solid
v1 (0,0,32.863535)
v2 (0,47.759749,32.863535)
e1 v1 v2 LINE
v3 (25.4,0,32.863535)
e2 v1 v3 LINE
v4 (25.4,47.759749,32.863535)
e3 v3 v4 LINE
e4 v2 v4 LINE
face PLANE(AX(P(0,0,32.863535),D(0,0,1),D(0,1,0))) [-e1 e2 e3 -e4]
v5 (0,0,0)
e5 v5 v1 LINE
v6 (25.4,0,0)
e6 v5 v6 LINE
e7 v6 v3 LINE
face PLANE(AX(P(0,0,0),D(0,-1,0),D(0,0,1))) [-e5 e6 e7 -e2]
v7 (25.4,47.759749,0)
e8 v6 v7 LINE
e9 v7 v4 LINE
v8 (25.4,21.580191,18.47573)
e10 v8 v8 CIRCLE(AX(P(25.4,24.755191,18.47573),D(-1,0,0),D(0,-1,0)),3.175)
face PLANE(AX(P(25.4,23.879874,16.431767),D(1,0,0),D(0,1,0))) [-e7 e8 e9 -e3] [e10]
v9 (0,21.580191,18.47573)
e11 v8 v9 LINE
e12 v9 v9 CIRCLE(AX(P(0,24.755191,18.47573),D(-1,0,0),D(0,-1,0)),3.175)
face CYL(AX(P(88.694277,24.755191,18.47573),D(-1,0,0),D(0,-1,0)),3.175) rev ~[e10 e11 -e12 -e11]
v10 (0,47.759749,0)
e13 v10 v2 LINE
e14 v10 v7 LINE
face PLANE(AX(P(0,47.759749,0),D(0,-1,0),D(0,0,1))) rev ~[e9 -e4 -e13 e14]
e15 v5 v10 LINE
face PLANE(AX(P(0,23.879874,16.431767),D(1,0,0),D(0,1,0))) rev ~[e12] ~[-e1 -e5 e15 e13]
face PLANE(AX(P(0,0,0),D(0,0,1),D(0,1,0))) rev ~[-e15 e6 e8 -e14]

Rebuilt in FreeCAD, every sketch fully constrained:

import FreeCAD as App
import Part
import Sketcher

V = App.Vector
Q = App.Units.Quantity


def add_polygon(sketch, points):
    """Adds a closed chain of lines whose ends are joined by coincident constraints."""
    first, n = sketch.GeometryCount, len(points)
    for a, b in zip(points, points[1:] + points[:1]):
        sketch.addGeometry(Part.LineSegment(App.Vector(*a, 0), App.Vector(*b, 0)), False)
    for i in range(n):
        sketch.addConstraint(Sketcher.Constraint("Coincident", first + i, 2, first + (i + 1) % n, 1))

doc = App.newDocument("Part")
body = doc.addObject("PartDesign::Body", "Body")

# Sketch on YZ plane
sketch1 = body.newObject("Sketcher::SketchObject", "Sketch")
sketch1.AttachmentSupport = (doc.getObject("YZ_Plane"), [""])
sketch1.MapMode = "FlatFace"
add_polygon(sketch1, [(0, 33), (0, 0), (48, 0), (48, 33)])  # lines 0-3
sketch1.addConstraint([
    Sketcher.Constraint("Vertical", 0),
    Sketcher.Constraint("Horizontal", 1),
    Sketcher.Constraint("Vertical", 2),
    Sketcher.Constraint("Horizontal", 3),
    Sketcher.Constraint("Coincident", 0, 2, -1, 1),
    Sketcher.Constraint("DistanceX", 1, 1, 1, 2, Q("47.759749 mm")),
    Sketcher.Constraint("DistanceY", 0, 2, 0, 1, Q("32.863535 mm")),
])
pad1 = body.newObject("PartDesign::Pad", "Pad")
pad1.Profile = sketch1
pad1.Length = Q("1 in")

# Sketch on YZ plane
sketch2 = body.newObject("Sketcher::SketchObject", "Sketch001")
sketch2.AttachmentSupport = (doc.getObject("YZ_Plane"), [""])
sketch2.MapMode = "FlatFace"
sketch2.AttachmentOffset = App.Placement(V(0, 0, 1 * 25.4), App.Rotation())
sketch2.addGeometry(Part.Circle(V(24.8, 18.5, 0), V(0, 0, 1), 3.2), False)
sketch2.addConstraint([
    Sketcher.Constraint("Diameter", 0, Q("0.25 in")),
    Sketcher.Constraint("DistanceX", -1, 1, 0, 3, Q("24.755191 mm")),
    Sketcher.Constraint("DistanceY", -1, 1, 0, 3, Q("18.47573 mm")),
])
doc.recompute()
hole = body.newObject("PartDesign::Hole", "Hole")
hole.Profile = sketch2
hole.ThreadType = "None"
hole.Diameter = Q("0.25 in")
hole.DepthType = "ThroughAll"

doc.recompute()
